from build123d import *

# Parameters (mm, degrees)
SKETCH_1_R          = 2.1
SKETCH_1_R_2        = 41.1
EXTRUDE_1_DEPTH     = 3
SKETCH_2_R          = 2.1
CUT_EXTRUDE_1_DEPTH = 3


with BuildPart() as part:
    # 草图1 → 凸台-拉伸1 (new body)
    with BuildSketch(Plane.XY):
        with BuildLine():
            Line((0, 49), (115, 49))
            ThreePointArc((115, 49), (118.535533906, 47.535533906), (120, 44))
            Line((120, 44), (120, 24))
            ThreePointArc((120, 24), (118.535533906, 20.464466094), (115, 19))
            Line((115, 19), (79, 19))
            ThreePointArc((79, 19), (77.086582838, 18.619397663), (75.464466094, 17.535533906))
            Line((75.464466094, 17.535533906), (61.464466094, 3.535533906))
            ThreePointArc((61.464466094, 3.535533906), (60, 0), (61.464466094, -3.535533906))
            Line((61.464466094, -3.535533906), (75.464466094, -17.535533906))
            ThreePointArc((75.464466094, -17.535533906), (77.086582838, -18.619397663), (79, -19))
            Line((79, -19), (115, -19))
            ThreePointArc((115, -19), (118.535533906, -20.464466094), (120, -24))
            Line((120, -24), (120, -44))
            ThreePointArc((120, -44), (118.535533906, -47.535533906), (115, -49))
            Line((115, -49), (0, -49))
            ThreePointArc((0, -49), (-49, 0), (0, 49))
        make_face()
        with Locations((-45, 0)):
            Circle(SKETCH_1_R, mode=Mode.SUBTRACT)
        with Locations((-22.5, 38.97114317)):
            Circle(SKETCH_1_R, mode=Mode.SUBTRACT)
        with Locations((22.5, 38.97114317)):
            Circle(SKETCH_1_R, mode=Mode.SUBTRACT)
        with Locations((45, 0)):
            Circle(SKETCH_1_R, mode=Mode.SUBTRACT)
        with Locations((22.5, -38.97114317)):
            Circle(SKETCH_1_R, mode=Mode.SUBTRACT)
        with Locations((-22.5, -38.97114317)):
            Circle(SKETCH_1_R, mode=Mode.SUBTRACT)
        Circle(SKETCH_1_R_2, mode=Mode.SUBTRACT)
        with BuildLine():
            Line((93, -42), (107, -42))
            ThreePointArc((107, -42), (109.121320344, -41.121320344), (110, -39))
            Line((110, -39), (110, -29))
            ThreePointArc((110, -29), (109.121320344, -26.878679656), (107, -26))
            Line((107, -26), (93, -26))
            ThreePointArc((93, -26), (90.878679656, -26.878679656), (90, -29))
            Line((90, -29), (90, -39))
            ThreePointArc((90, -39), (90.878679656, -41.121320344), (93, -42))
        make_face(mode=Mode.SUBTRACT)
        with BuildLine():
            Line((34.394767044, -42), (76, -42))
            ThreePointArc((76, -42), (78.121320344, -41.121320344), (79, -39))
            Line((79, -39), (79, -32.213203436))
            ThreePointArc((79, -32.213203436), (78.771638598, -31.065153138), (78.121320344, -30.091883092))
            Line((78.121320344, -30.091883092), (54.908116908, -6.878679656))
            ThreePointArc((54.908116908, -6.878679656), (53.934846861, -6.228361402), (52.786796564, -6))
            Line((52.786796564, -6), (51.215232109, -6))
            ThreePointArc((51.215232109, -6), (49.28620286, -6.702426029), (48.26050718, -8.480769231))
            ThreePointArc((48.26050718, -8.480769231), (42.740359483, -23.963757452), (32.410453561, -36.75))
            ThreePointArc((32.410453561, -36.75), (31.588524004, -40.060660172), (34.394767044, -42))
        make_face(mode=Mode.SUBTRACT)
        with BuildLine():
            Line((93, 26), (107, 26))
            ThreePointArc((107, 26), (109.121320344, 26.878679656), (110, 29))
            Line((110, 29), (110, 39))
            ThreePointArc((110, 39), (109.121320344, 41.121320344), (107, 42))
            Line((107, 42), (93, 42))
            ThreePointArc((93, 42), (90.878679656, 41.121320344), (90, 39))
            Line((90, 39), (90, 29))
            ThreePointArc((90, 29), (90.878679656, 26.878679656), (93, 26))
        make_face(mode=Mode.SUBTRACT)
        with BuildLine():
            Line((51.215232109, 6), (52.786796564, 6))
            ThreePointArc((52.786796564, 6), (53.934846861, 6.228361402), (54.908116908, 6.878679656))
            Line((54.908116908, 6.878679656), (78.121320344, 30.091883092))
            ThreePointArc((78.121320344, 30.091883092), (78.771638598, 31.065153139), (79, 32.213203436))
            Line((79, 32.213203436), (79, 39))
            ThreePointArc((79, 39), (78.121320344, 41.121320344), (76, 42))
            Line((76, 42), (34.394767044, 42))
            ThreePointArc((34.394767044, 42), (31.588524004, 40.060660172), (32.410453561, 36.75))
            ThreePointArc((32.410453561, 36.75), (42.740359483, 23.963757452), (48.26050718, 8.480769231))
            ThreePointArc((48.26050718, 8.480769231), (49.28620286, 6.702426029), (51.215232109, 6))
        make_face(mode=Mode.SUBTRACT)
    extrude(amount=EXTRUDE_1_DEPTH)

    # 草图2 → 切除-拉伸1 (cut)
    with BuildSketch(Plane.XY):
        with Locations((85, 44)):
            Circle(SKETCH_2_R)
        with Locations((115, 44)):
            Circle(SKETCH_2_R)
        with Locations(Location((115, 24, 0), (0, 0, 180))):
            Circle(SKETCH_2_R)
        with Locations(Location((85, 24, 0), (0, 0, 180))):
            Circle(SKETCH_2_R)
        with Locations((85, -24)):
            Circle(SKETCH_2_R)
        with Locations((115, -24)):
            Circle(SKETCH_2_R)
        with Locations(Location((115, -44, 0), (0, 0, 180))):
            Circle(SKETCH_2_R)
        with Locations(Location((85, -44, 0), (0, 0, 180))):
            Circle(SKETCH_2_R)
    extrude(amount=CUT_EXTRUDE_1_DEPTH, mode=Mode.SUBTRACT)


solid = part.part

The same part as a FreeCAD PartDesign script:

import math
import FreeCAD as App
import Part
import Sketcher

doc = App.newDocument("Part")
body = doc.addObject("PartDesign::Body", "Body")

# Sketch on XY plane
sketch1 = body.newObject("Sketcher::SketchObject", "Sketch")
sketch1.AttachmentSupport = (doc.getObject("XY_Plane"), [""])
sketch1.MapMode = "FlatFace"
sketch1.addGeometry([
    Part.LineSegment(App.Vector(115, 49, 0), App.Vector(0, 49, 0)),  # 0
    Part.ArcOfCircle(Part.Circle(App.Vector(0, 0, 0), App.Vector(0, 0, 1), 49), math.radians(90), math.radians(270)),  # 1
    Part.LineSegment(App.Vector(0, -49, 0), App.Vector(115, -49, 0)),  # 2
    Part.ArcOfCircle(Part.Circle(App.Vector(115, -44, 0), App.Vector(0, 0, 1), 5), math.radians(-90), math.radians(0)),  # 3
    Part.LineSegment(App.Vector(120, -44, 0), App.Vector(120, -24, 0)),  # 4
    Part.ArcOfCircle(Part.Circle(App.Vector(115, -24, 0), App.Vector(0, 0, 1), 5), math.radians(0), math.radians(90)),  # 5
    Part.LineSegment(App.Vector(115, -19, 0), App.Vector(79, -19, 0)),  # 6
    Part.ArcOfCircle(Part.Circle(App.Vector(79, -14, 0), App.Vector(0, 0, 1), 5), math.radians(-135), math.radians(-90)),  # 7
    Part.LineSegment(App.Vector(75.464466, -17.535534, 0), App.Vector(61.464466, -3.535534, 0)),  # 8
    Part.ArcOfCircle(Part.Circle(App.Vector(65, 0, 0), App.Vector(0, 0, 1), 5), math.radians(135), math.radians(225)),  # 9
    Part.LineSegment(App.Vector(61.464466, 3.535534, 0), App.Vector(75.464466, 17.535534, 0)),  # 10
    Part.ArcOfCircle(Part.Circle(App.Vector(79, 14, 0), App.Vector(0, 0, 1), 5), math.radians(90), math.radians(135)),  # 11
    Part.LineSegment(App.Vector(79, 19, 0), App.Vector(115, 19, 0)),  # 12
    Part.ArcOfCircle(Part.Circle(App.Vector(115, 24, 0), App.Vector(0, 0, 1), 5), math.radians(-90), math.radians(0)),  # 13
    Part.LineSegment(App.Vector(120, 24, 0), App.Vector(120, 44, 0)),  # 14
    Part.ArcOfCircle(Part.Circle(App.Vector(115, 44, 0), App.Vector(0, 0, 1), 5), math.radians(0), math.radians(90)),  # 15
    Part.ArcOfCircle(Part.Circle(App.Vector(93, -39, 0), App.Vector(0, 0, 1), 3), math.radians(180), math.radians(270)),  # 16
    Part.LineSegment(App.Vector(90, -39, 0), App.Vector(90, -29, 0)),  # 17
    Part.ArcOfCircle(Part.Circle(App.Vector(93, -29, 0), App.Vector(0, 0, 1), 3), math.radians(90), math.radians(180)),  # 18
    Part.LineSegment(App.Vector(93, -26, 0), App.Vector(107, -26, 0)),  # 19
    Part.ArcOfCircle(Part.Circle(App.Vector(107, -29, 0), App.Vector(0, 0, 1), 3), math.radians(0), math.radians(90)),  # 20
    Part.LineSegment(App.Vector(110, -29, 0), App.Vector(110, -39, 0)),  # 21
    Part.ArcOfCircle(Part.Circle(App.Vector(107, -39, 0), App.Vector(0, 0, 1), 3), math.radians(-90), math.radians(0)),  # 22
    Part.LineSegment(App.Vector(107, -42, 0), App.Vector(93, -42, 0)),  # 23
    Part.ArcOfCircle(Part.Circle(App.Vector(34.394767, -39, 0), App.Vector(0, 0, 1), 3), math.radians(131.409622), math.radians(270)),  # 24
    Part.ArcOfCircle(Part.Circle(App.Vector(0, 0, 0), App.Vector(0, 0, 1), 49), math.radians(-48.590378), math.radians(-9.966766)),  # 25
    Part.ArcOfCircle(Part.Circle(App.Vector(51.215232, -9, 0), App.Vector(0, 0, 1), 3), math.radians(90), math.radians(170.033234)),  # 26
    Part.LineSegment(App.Vector(51.215232, -6, 0), App.Vector(52.786797, -6, 0)),  # 27
    Part.ArcOfCircle(Part.Circle(App.Vector(52.786797, -9, 0), App.Vector(0, 0, 1), 3), math.radians(45), math.radians(90)),  # 28
    Part.LineSegment(App.Vector(54.908117, -6.87868, 0), App.Vector(78.12132, -30.091883, 0)),  # 29
    Part.ArcOfCircle(Part.Circle(App.Vector(76, -32.213203, 0), App.Vector(0, 0, 1), 3), math.radians(0), math.radians(45)),  # 30
    Part.LineSegment(App.Vector(79, -32.213203, 0), App.Vector(79, -39, 0)),  # 31
    Part.ArcOfCircle(Part.Circle(App.Vector(76, -39, 0), App.Vector(0, 0, 1), 3), math.radians(-90), math.radians(0)),  # 32
    Part.LineSegment(App.Vector(76, -42, 0), App.Vector(34.394767, -42, 0)),  # 33
    Part.Circle(App.Vector(22.5, -38.971143, 0), App.Vector(0, 0, 1), 2.1),  # 34
    Part.Circle(App.Vector(-22.5, -38.971143, 0), App.Vector(0, 0, 1), 2.1),  # 35
    Part.Circle(App.Vector(45, 0, 0), App.Vector(0, 0, 1), 2.1),  # 36
    Part.ArcOfCircle(Part.Circle(App.Vector(93, 29, 0), App.Vector(0, 0, 1), 3), math.radians(180), math.radians(270)),  # 37
    Part.LineSegment(App.Vector(90, 29, 0), App.Vector(90, 39, 0)),  # 38
    Part.ArcOfCircle(Part.Circle(App.Vector(93, 39, 0), App.Vector(0, 0, 1), 3), math.radians(90), math.radians(180)),  # 39
    Part.LineSegment(App.Vector(93, 42, 0), App.Vector(107, 42, 0)),  # 40
    Part.ArcOfCircle(Part.Circle(App.Vector(107, 39, 0), App.Vector(0, 0, 1), 3), math.radians(0), math.radians(90)),  # 41
    Part.LineSegment(App.Vector(110, 39, 0), App.Vector(110, 29, 0)),  # 42
    Part.ArcOfCircle(Part.Circle(App.Vector(107, 29, 0), App.Vector(0, 0, 1), 3), math.radians(-90), math.radians(0)),  # 43
    Part.LineSegment(App.Vector(107, 26, 0), App.Vector(93, 26, 0)),  # 44
    Part.ArcOfCircle(Part.Circle(App.Vector(51.215232, 9, 0), App.Vector(0, 0, 1), 3), math.radians(-170.033234), math.radians(-90)),  # 45
    Part.ArcOfCircle(Part.Circle(App.Vector(0, 0, 0), App.Vector(0, 0, 1), 49), math.radians(9.966766), math.radians(48.590378)),  # 46
    Part.ArcOfCircle(Part.Circle(App.Vector(34.394767, 39, 0), App.Vector(0, 0, 1), 3), math.radians(90), math.radians(228.590378)),  # 47
    Part.LineSegment(App.Vector(34.394767, 42, 0), App.Vector(76, 42, 0)),  # 48
    Part.ArcOfCircle(Part.Circle(App.Vector(76, 39, 0), App.Vector(0, 0, 1), 3), math.radians(0), math.radians(90)),  # 49
    Part.LineSegment(App.Vector(79, 39, 0), App.Vector(79, 32.213203, 0)),  # 50
    Part.ArcOfCircle(Part.Circle(App.Vector(76, 32.213203, 0), App.Vector(0, 0, 1), 3), math.radians(-45), math.radians(0)),  # 51
    Part.LineSegment(App.Vector(78.12132, 30.091883, 0), App.Vector(54.908117, 6.87868, 0)),  # 52
    Part.ArcOfCircle(Part.Circle(App.Vector(52.786797, 9, 0), App.Vector(0, 0, 1), 3), math.radians(-90), math.radians(-45)),  # 53
    Part.LineSegment(App.Vector(52.786797, 6, 0), App.Vector(51.215232, 6, 0)),  # 54
    Part.Circle(App.Vector(0, 0, 0), App.Vector(0, 0, 1), 41.1),  # 55
    Part.Circle(App.Vector(-45, 0, 0), App.Vector(0, 0, 1), 2.1),  # 56
    Part.Circle(App.Vector(22.5, 38.971143, 0), App.Vector(0, 0, 1), 2.1),  # 57
    Part.Circle(App.Vector(-22.5, 38.971143, 0), App.Vector(0, 0, 1), 2.1),  # 58
], False)
sketch1.addConstraint([
    Sketcher.Constraint("Tangent", 0, 2, 1, 1),
    Sketcher.Constraint("Tangent", 1, 2, 2, 1),
    Sketcher.Constraint("Tangent", 2, 2, 3, 1),
    Sketcher.Constraint("Tangent", 3, 2, 4, 1),
    Sketcher.Constraint("Tangent", 4, 2, 5, 1),
    Sketcher.Constraint("Tangent", 5, 2, 6, 1),
    Sketcher.Constraint("Tangent", 6, 2, 7, 2),
    Sketcher.Constraint("Tangent", 7, 1, 8, 1),
    Sketcher.Constraint("Tangent", 8, 2, 9, 2),
    Sketcher.Constraint("Tangent", 9, 1, 10, 1),
    Sketcher.Constraint("Tangent", 10, 2, 11, 2),
    Sketcher.Constraint("Tangent", 11, 1, 12, 1),
    Sketcher.Constraint("Tangent", 12, 2, 13, 1),
    Sketcher.Constraint("Tangent", 13, 2, 14, 1),
    Sketcher.Constraint("Tangent", 14, 2, 15, 1),
    Sketcher.Constraint("Tangent", 15, 2, 0, 1),
    Sketcher.Constraint("Tangent", 16, 1, 17, 1),
    Sketcher.Constraint("Tangent", 17, 2, 18, 2),
    Sketcher.Constraint("Tangent", 18, 1, 19, 1),
    Sketcher.Constraint("Tangent", 19, 2, 20, 2),
    Sketcher.Constraint("Tangent", 20, 1, 21, 1),
    Sketcher.Constraint("Tangent", 21, 2, 22, 2),
    Sketcher.Constraint("Tangent", 22, 1, 23, 1),
    Sketcher.Constraint("Tangent", 23, 2, 16, 2),
    Sketcher.Constraint("Tangent", 24, 1, 25, 1),
    Sketcher.Constraint("Tangent", 25, 2, 26, 2),
    Sketcher.Constraint("Tangent", 26, 1, 27, 1),
    Sketcher.Constraint("Tangent", 27, 2, 28, 2),
    Sketcher.Constraint("Tangent", 28, 1, 29, 1),
    Sketcher.Constraint("Tangent", 29, 2, 30, 2),
    Sketcher.Constraint("Tangent", 30, 1, 31, 1),
    Sketcher.Constraint("Tangent", 31, 2, 32, 2),
    Sketcher.Constraint("Tangent", 32, 1, 33, 1),
    Sketcher.Constraint("Tangent", 33, 2, 24, 2),
    Sketcher.Constraint("Tangent", 37, 1, 38, 1),
    Sketcher.Constraint("Tangent", 38, 2, 39, 2),
    Sketcher.Constraint("Tangent", 39, 1, 40, 1),
    Sketcher.Constraint("Tangent", 40, 2, 41, 2),
    Sketcher.Constraint("Tangent", 41, 1, 42, 1),
    Sketcher.Constraint("Tangent", 42, 2, 43, 2),
    Sketcher.Constraint("Tangent", 43, 1, 44, 1),
    Sketcher.Constraint("Tangent", 44, 2, 37, 2),
    Sketcher.Constraint("Tangent", 45, 1, 46, 1),
    Sketcher.Constraint("Tangent", 46, 2, 47, 2),
    Sketcher.Constraint("Tangent", 47, 1, 48, 1),
    Sketcher.Constraint("Tangent", 48, 2, 49, 2),
    Sketcher.Constraint("Tangent", 49, 1, 50, 1),
    Sketcher.Constraint("Tangent", 50, 2, 51, 2),
    Sketcher.Constraint("Tangent", 51, 1, 52, 1),
    Sketcher.Constraint("Tangent", 52, 2, 53, 2),
    Sketcher.Constraint("Tangent", 53, 1, 54, 1),
    Sketcher.Constraint("Tangent", 54, 2, 45, 2),
    Sketcher.Constraint("Horizontal", 0),
    Sketcher.Constraint("Horizontal", 2),
    Sketcher.Constraint("Vertical", 4),
    Sketcher.Constraint("Horizontal", 6),
    Sketcher.Constraint("Horizontal", 12),
    Sketcher.Constraint("Vertical", 14),
    Sketcher.Constraint("Vertical", 17),
    Sketcher.Constraint("Horizontal", 19),
    Sketcher.Constraint("Vertical", 21),
    Sketcher.Constraint("Horizontal", 23),
    Sketcher.Constraint("Horizontal", 27),
    Sketcher.Constraint("Vertical", 31),
    Sketcher.Constraint("Horizontal", 33),
    Sketcher.Constraint("Vertical", 38),
    Sketcher.Constraint("Horizontal", 40),
    Sketcher.Constraint("Vertical", 42),
    Sketcher.Constraint("Horizontal", 44),
    Sketcher.Constraint("Horizontal", 48),
    Sketcher.Constraint("Vertical", 50),
    Sketcher.Constraint("Horizontal", 54),
    Sketcher.Constraint("Coincident", 1, 3, -1, 1),
    Sketcher.Constraint("Coincident", 25, 3, -1, 1),
    Sketcher.Constraint("Coincident", 46, 3, -1, 1),
    Sketcher.Constraint("Coincident", 55, 3, -1, 1),
    Sketcher.Constraint("Equal", 3, 5),
    Sketcher.Constraint("Equal", 5, 7),
    Sketcher.Constraint("Equal", 7, 9),
    Sketcher.Constraint("Equal", 9, 11),
    Sketcher.Constraint("Equal", 11, 13),
    Sketcher.Constraint("Equal", 13, 15),
    Sketcher.Constraint("Equal", 16, 18),
    Sketcher.Constraint("Equal", 18, 20),
    Sketcher.Constraint("Equal", 20, 22),
    Sketcher.Constraint("Equal", 22, 24),
    Sketcher.Constraint("Equal", 1, 25),
    Sketcher.Constraint("Equal", 24, 26),
    Sketcher.Constraint("Equal", 26, 28),
    Sketcher.Constraint("Equal", 28, 30),
    Sketcher.Constraint("Equal", 30, 32),
    Sketcher.Constraint("Equal", 34, 35),
    Sketcher.Constraint("Equal", 35, 36),
    Sketcher.Constraint("Equal", 32, 37),
    Sketcher.Constraint("Equal", 37, 39),
    Sketcher.Constraint("Equal", 39, 41),
    Sketcher.Constraint("Equal", 41, 43),
    Sketcher.Constraint("Equal", 43, 45),
    Sketcher.Constraint("Equal", 25, 46),
    Sketcher.Constraint("Equal", 45, 47),
    Sketcher.Constraint("Equal", 47, 49),
    Sketcher.Constraint("Equal", 49, 51),
    Sketcher.Constraint("Equal", 51, 53),
    Sketcher.Constraint("Equal", 36, 56),
    Sketcher.Constraint("Equal", 56, 57),
    Sketcher.Constraint("Equal", 57, 58),
    Sketcher.Constraint("Symmetric", 36, 3, 56, 3, -1, 1),
    Sketcher.Constraint("Symmetric", 35, 3, 57, 3, -1, 1),
    Sketcher.Constraint("Symmetric", 34, 3, 58, 3, -1, 1),
    Sketcher.Constraint("Symmetric", 34, 3, 35, 3, -2),
    Sketcher.Constraint("Symmetric", 7, 3, 11, 3, -1),
    Sketcher.Constraint("Symmetric", 18, 3, 37, 3, -1),
    Sketcher.Constraint("Symmetric", 22, 3, 41, 3, -1),
    Sketcher.Constraint("Symmetric", 32, 3, 49, 3, -1),
    Sketcher.Constraint("Symmetric", 28, 3, 53, 3, -1),
    Sketcher.Constraint("PointOnObject", 9, 3, -1),
    Sketcher.Constraint("PointOnObject", 36, 3, -1),
    Sketcher.Constraint("Perpendicular", 8, 10),
    Sketcher.Constraint("Perpendicular", 10, 29),
    Sketcher.Constraint("Perpendicular", 29, 52),
    Sketcher.Constraint("Horizontal", 22, 3, 24, 3),
    Sketcher.Constraint("Vertical", 5, 3, 13, 3),
    Sketcher.Constraint("Vertical", 11, 1, 30, 1),
    Sketcher.Constraint("Radius", 1, 49.0),
    Sketcher.Constraint("Radius", 3, 5.0),
    Sketcher.Constraint("Radius", 16, 3.0),
    Sketcher.Constraint("Diameter", 34, 4.2),
    Sketcher.Constraint("Diameter", 55, 82.2),
    Sketcher.Constraint("DistanceX", 0, 2, 0, 1, 115.0),
    Sketcher.Constraint("DistanceX", 6, 2, 6, 1, 36.0),
    Sketcher.Constraint("DistanceX", 19, 1, 19, 2, 14.0),
    Sketcher.Constraint("DistanceY", 4, 1, 4, 2, 20.0),
    Sketcher.Constraint("DistanceY", 17, 1, 17, 2, 10.0),
    Sketcher.Constraint("DistanceX", -1, 1, 16, 3, 93.0),
    Sketcher.Constraint("DistanceY", 16, 3, -1, 1, 39.0),
    Sketcher.Constraint("DistanceY", 26, 3, -1, 1, 9.0),
    Sketcher.Constraint("DistanceX", -1, 1, 36, 3, 45.0),
    Sketcher.Constraint("DistanceX", -1, 1, 34, 3, 22.5),
    Sketcher.Constraint("DistanceX", 27, 1, 27, 2, 1.571564),
    Sketcher.Constraint("DistanceY", 34, 3, -1, 1, 38.971143),
])
pad1 = body.newObject("PartDesign::Pad", "Pad")
pad1.Profile = sketch1
pad1.Length = 3

# Sketch on XY plane
sketch2 = body.newObject("Sketcher::SketchObject", "Sketch001")
sketch2.AttachmentSupport = (doc.getObject("XY_Plane"), [""])
sketch2.MapMode = "FlatFace"
sketch2.addGeometry([
    Part.Circle(App.Vector(85, 44, 0), App.Vector(0, 0, 1), 2.1),  # 0
    Part.Circle(App.Vector(115, 44, 0), App.Vector(0, 0, 1), 2.1),  # 1
    Part.Circle(App.Vector(115, 24, 0), App.Vector(0, 0, 1), 2.1),  # 2
    Part.Circle(App.Vector(85, 24, 0), App.Vector(0, 0, 1), 2.1),  # 3
    Part.Circle(App.Vector(85, -24, 0), App.Vector(0, 0, 1), 2.1),  # 4
    Part.Circle(App.Vector(115, -24, 0), App.Vector(0, 0, 1), 2.1),  # 5
    Part.Circle(App.Vector(115, -44, 0), App.Vector(0, 0, 1), 2.1),  # 6
    Part.Circle(App.Vector(85, -44, 0), App.Vector(0, 0, 1), 2.1),  # 7
], False)
sketch2.addConstraint([
    Sketcher.Constraint("Equal", 0, 1),
    Sketcher.Constraint("Equal", 1, 2),
    Sketcher.Constraint("Equal", 2, 3),
    Sketcher.Constraint("Equal", 3, 4),
    Sketcher.Constraint("Equal", 4, 5),
    Sketcher.Constraint("Equal", 5, 6),
    Sketcher.Constraint("Equal", 6, 7),
    Sketcher.Constraint("Symmetric", 3, 3, 4, 3, -1),
    Sketcher.Constraint("Symmetric", 2, 3, 5, 3, -1),
    Sketcher.Constraint("Symmetric", 1, 3, 6, 3, -1),
    Sketcher.Constraint("Symmetric", 0, 3, 7, 3, -1),
    Sketcher.Constraint("Horizontal", 0, 3, 1, 3),
    Sketcher.Constraint("Horizontal", 2, 3, 3, 3),
    Sketcher.Constraint("Vertical", 1, 3, 2, 3),
    Sketcher.Constraint("Vertical", 0, 3, 3, 3),
    Sketcher.Constraint("Diameter", 0, 4.2),
    Sketcher.Constraint("DistanceX", -1, 1, 0, 3, 85.0),
    Sketcher.Constraint("DistanceY", -1, 1, 0, 3, 44.0),
    Sketcher.Constraint("DistanceX", -1, 1, 1, 3, 115.0),
    Sketcher.Constraint("DistanceY", -1, 1, 2, 3, 24.0),
])
pocket1 = body.newObject("PartDesign::Pocket", "Pocket")
pocket1.Profile = sketch2
pocket1.Length = 3
pocket1.Reversed = True

doc.recompute()
